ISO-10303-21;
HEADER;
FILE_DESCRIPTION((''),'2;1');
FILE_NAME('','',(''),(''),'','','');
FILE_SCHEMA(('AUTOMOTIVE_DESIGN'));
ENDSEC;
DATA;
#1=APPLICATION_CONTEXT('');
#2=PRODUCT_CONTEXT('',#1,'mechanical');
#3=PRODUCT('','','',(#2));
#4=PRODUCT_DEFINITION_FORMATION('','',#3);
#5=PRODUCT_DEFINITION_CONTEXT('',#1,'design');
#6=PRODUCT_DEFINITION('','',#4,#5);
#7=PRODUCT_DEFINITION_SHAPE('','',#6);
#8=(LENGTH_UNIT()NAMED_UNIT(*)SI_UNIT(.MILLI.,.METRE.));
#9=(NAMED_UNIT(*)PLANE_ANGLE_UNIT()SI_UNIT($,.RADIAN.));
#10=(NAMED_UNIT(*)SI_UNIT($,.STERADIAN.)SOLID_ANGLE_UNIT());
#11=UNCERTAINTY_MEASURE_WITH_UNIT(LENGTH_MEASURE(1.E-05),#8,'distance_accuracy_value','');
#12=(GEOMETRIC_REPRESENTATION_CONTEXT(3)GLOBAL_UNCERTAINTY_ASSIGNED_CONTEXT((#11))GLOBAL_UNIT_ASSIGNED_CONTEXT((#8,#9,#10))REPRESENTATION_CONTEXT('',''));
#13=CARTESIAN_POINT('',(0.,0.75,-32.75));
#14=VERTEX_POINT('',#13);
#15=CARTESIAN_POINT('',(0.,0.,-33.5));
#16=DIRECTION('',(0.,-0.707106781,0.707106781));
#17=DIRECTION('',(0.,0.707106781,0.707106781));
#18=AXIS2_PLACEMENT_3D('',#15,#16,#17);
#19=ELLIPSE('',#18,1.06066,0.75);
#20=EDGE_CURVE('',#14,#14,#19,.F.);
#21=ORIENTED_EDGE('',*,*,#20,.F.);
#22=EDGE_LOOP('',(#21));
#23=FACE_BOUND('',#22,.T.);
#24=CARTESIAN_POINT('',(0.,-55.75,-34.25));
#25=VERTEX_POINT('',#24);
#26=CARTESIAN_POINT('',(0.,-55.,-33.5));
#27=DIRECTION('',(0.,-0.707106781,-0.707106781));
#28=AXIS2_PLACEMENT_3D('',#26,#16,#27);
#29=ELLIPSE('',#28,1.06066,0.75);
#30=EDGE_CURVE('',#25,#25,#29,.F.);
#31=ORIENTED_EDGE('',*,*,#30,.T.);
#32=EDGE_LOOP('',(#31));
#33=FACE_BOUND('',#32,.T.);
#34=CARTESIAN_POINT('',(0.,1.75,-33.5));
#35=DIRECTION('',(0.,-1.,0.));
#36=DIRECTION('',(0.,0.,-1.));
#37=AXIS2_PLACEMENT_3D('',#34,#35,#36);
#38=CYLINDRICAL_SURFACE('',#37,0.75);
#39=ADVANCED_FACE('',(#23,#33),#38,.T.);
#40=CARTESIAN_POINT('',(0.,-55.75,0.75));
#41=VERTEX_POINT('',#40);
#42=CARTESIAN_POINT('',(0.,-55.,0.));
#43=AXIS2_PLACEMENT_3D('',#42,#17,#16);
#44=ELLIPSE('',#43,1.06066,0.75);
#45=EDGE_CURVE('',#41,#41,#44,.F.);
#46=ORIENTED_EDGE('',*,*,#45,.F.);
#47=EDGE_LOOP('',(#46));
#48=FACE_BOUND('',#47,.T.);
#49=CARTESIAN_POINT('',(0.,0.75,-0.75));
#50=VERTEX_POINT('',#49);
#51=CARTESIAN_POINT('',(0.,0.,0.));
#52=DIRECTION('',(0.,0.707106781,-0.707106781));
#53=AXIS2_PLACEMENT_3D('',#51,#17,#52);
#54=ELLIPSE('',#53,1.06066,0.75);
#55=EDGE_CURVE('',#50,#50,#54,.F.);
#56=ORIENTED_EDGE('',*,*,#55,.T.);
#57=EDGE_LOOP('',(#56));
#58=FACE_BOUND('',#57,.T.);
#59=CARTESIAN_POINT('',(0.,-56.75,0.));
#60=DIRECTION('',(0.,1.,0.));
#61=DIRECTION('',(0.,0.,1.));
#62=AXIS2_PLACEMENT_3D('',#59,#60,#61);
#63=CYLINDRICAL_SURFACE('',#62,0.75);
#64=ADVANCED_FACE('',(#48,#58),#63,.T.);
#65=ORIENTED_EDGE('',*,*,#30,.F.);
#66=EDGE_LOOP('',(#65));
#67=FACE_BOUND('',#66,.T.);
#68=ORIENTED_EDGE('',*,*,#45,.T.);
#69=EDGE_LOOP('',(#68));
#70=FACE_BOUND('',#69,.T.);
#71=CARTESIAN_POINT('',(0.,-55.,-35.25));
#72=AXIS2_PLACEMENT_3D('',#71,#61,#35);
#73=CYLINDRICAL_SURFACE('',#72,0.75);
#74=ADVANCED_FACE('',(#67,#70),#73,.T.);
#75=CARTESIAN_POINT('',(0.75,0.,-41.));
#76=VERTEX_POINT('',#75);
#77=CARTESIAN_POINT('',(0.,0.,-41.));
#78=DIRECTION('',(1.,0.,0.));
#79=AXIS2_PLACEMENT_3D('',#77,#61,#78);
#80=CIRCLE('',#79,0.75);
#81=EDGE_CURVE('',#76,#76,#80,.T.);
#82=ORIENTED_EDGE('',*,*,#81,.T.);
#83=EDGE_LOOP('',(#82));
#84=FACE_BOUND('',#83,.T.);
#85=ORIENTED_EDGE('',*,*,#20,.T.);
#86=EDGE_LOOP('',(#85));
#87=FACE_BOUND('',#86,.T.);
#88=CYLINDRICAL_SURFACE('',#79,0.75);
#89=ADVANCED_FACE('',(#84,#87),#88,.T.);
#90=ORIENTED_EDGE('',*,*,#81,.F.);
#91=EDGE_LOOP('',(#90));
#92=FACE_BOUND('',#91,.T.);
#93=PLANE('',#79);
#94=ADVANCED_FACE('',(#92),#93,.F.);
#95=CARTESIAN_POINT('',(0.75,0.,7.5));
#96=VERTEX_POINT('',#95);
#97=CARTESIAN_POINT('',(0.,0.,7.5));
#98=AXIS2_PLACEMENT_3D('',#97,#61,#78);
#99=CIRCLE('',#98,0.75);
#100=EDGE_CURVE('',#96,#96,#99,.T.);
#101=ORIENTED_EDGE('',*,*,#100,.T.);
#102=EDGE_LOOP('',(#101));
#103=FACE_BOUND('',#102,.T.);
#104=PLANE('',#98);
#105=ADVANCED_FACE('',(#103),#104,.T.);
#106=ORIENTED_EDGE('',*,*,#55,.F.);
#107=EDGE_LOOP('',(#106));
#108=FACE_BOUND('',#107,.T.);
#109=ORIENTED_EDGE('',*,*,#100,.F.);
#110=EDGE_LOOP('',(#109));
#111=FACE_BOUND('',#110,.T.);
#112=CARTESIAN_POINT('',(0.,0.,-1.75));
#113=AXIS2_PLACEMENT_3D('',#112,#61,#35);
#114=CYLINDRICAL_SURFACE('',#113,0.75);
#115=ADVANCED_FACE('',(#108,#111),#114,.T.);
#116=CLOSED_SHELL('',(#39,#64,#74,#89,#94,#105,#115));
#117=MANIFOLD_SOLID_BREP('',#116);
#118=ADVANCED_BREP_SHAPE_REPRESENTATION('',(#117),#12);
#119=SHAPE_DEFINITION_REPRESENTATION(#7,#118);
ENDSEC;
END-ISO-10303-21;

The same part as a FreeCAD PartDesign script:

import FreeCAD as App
import Part
import Sketcher
from FreeCAD import Vector
Q = App.Units.Quantity

doc = App.newDocument("Part")
params = doc.addObject("Spreadsheet::Sheet", "Params")
for row, (alias, value) in enumerate([
    ("sketch1_diameter", "1.5 mm"),
    ("sketch2_width", "55 mm"),
    ("sketch2_height", "7.5 mm"),
    ("sketch2_height2", "33.5 mm"),
], start=1):
    params.set(f"A{row}", alias)
    params.set(f"B{row}", "=" + value)
    params.setAlias(f"B{row}", alias)

body = doc.addObject("PartDesign::Body", "Body")

sketch1 = body.newObject("Sketcher::SketchObject", "Sketch")
sketch1.AttachmentSupport = (doc.getObject("XY_Plane"), [""])
sketch1.MapMode = "FlatFace"
sketch1.AttachmentOffset = App.Placement(Vector(0, 0, 7.5), App.Rotation())
sketch1.addGeometry(Part.Circle(Vector(0, 0, 0), Vector(0, 0, 1), 0.8), False)
sketch1.addConstraint(Sketcher.Constraint("Coincident", 0, 3, -1, 1))
sketch1.addConstraint(Sketcher.Constraint("Diameter", 0, Q("1.5 mm")))
sketch1.setExpression("Constraints[1]", "Params.sketch1_diameter")

sketch2 = body.newObject("Sketcher::SketchObject", "Sketch001")
sketch2.AttachmentSupport = (doc.getObject("YZ_Plane"), [""])
sketch2.MapMode = "FlatFace"
sketch2.addGeometry(Part.LineSegment(Vector(0, -41, 0), Vector(0, -34, 0)), False)
sketch2.addGeometry(Part.LineSegment(Vector(0, -34, 0), Vector(-55, -34, 0)), False)
sketch2.addGeometry(Part.LineSegment(Vector(-55, -34, 0), Vector(-55, 0, 0)), False)
sketch2.addGeometry(Part.LineSegment(Vector(-55, 0, 0), Vector(0, 0, 0)), False)
sketch2.addGeometry(Part.LineSegment(Vector(0, 0, 0), Vector(0, 8, 0)), False)
sketch2.addConstraint(Sketcher.Constraint("Coincident", 0, 2, 1, 1))
sketch2.addConstraint(Sketcher.Constraint("Coincident", 1, 2, 2, 1))
sketch2.addConstraint(Sketcher.Constraint("Coincident", 2, 2, 3, 1))
sketch2.addConstraint(Sketcher.Constraint("Coincident", 3, 2, 4, 1))
sketch2.addConstraint(Sketcher.Constraint("Vertical", 0))
sketch2.addConstraint(Sketcher.Constraint("Horizontal", 1))
sketch2.addConstraint(Sketcher.Constraint("Vertical", 2))
sketch2.addConstraint(Sketcher.Constraint("Horizontal", 3))
sketch2.addConstraint(Sketcher.Constraint("Vertical", 4))
sketch2.addConstraint(Sketcher.Constraint("Coincident", 3, 2, -1, 1))
sketch2.addConstraint(Sketcher.Constraint("PointOnObject", 0, 1, -2))
sketch2.addConstraint(Sketcher.Constraint("Equal", 0, 4))
sketch2.addConstraint(Sketcher.Constraint("DistanceX", 1, 2, 1, 1, Q("55 mm")))
sketch2.addConstraint(Sketcher.Constraint("DistanceY", 0, 1, 0, 2, Q("7.5 mm")))
sketch2.addConstraint(Sketcher.Constraint("DistanceY", 2, 1, 2, 2, Q("33.5 mm")))
sketch2.setExpression("Constraints[12]", "Params.sketch2_width")
sketch2.setExpression("Constraints[13]", "Params.sketch2_height")
sketch2.setExpression("Constraints[14]", "Params.sketch2_height2")
doc.recompute()

additivepipe = body.newObject("PartDesign::AdditivePipe", "AdditivePipe")
additivepipe.Profile = sketch1
additivepipe.Spine = (sketch2, ["Edge1", "Edge2", "Edge3", "Edge4", "Edge5"])
additivepipe.Transition = "Right corner"

doc.recompute()
